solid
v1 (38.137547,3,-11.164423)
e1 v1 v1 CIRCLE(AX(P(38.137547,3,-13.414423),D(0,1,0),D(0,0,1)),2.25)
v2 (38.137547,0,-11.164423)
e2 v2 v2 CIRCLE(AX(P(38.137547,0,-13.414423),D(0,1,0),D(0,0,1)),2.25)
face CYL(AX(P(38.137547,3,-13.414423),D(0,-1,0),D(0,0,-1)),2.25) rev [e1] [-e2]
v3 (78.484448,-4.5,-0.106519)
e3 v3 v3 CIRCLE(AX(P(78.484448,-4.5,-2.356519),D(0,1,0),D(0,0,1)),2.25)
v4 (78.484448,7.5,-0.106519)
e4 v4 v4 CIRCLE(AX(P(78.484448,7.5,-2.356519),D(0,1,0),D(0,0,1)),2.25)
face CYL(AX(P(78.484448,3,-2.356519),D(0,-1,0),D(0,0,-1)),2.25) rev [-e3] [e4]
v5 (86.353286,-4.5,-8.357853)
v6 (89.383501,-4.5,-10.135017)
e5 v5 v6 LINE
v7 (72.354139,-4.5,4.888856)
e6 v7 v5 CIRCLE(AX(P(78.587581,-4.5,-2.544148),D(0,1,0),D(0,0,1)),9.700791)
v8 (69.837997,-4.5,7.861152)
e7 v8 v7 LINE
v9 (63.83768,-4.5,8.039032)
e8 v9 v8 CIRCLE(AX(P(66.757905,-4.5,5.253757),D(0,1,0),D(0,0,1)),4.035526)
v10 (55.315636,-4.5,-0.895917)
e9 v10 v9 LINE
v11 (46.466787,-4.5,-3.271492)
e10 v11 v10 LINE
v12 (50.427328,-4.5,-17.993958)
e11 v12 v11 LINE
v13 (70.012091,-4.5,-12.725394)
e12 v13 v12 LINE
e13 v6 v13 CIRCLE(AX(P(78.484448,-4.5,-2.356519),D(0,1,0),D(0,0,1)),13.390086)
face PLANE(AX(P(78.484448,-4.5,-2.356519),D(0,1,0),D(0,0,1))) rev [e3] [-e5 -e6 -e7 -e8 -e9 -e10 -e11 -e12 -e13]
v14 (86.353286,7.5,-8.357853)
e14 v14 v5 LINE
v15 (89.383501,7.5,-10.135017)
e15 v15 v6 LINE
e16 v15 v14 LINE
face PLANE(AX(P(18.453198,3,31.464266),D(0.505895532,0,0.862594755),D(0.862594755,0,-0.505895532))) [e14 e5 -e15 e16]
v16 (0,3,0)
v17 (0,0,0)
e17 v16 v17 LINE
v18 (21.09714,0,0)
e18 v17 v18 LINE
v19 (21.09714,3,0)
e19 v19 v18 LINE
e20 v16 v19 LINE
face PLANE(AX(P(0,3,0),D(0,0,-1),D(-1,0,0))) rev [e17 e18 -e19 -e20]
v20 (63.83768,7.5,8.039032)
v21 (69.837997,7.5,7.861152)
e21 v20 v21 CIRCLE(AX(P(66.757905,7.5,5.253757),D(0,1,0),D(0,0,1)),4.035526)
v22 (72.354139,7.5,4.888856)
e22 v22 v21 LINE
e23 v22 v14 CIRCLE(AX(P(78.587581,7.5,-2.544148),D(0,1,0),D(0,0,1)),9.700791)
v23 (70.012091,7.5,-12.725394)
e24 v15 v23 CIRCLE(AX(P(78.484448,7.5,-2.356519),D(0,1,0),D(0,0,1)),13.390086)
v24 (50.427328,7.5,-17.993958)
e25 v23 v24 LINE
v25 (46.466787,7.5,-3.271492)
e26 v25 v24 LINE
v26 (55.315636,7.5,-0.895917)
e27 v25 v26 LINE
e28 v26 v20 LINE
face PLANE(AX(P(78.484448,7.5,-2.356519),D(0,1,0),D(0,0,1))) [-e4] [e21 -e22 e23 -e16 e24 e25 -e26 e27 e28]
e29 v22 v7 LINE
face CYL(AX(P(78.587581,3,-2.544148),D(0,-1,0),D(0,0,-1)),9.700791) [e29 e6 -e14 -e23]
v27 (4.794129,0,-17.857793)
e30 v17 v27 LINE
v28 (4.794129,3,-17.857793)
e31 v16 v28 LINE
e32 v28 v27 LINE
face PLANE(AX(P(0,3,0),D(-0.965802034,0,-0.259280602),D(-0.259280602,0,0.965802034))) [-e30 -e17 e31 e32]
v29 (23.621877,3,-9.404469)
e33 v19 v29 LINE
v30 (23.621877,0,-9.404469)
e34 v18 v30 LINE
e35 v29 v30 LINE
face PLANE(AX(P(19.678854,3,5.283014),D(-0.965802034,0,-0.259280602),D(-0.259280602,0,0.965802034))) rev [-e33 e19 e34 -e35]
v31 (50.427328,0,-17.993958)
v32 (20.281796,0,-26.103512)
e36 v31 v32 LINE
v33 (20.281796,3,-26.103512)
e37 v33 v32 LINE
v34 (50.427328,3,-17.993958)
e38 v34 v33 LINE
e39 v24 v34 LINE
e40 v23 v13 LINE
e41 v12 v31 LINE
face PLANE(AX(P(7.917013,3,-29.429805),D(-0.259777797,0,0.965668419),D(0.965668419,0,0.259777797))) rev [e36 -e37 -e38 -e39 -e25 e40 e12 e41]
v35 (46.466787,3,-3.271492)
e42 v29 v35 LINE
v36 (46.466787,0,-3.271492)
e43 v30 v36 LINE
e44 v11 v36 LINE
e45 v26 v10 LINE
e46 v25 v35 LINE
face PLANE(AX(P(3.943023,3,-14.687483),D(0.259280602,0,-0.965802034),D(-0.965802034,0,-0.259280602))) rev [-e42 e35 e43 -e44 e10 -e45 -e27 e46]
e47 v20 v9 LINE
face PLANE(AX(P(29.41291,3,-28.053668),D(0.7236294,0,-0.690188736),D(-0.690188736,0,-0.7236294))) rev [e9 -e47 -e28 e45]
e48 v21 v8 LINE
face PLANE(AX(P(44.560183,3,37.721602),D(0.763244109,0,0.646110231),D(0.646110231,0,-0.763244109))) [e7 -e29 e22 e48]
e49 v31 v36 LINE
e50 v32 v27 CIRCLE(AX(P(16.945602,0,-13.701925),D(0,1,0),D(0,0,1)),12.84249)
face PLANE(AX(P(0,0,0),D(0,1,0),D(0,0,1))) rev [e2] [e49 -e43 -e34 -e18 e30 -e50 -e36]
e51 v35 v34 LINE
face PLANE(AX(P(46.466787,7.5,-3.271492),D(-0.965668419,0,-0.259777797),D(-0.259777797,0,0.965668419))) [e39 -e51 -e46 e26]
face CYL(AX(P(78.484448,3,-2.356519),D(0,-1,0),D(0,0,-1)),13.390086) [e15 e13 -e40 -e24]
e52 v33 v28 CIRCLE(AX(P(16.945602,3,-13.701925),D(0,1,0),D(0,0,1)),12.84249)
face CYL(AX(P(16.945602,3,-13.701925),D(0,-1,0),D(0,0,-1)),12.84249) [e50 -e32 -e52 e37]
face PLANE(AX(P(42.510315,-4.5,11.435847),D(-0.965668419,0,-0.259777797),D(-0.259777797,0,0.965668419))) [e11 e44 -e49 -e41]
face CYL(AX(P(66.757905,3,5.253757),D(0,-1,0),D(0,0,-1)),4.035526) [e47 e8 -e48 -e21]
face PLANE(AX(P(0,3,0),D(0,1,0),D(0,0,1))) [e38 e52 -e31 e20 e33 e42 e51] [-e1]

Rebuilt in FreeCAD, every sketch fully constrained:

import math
import FreeCAD as App
import Part
import Sketcher

V = App.Vector
Q = App.Units.Quantity

doc = App.newDocument("Part")
body = doc.addObject("PartDesign::Body", "Body")

# Sketch on XZ plane
sketch1 = body.newObject("Sketcher::SketchObject", "Sketch")
sketch1.AttachmentSupport = (doc.getObject("XZ_Plane"), [""])
sketch1.MapMode = "FlatFace"
sketch1.addGeometry(Part.LineSegment(V(4.3, -16.2, 0), V(0, 0, 0)), False)
sketch1.addGeometry(Part.LineSegment(V(0, 0, 0), V(21.1, 0, 0)), False)
sketch1.addGeometry(Part.LineSegment(V(21.1, 0, 0), V(23.6, -9.4, 0)), False)
sketch1.addGeometry(Part.LineSegment(V(23.6, -9.4, 0), V(55.3, -0.9, 0)), False)
sketch1.addGeometry(Part.LineSegment(V(55.3, -0.9, 0), V(63.8, 8, 0)), False)
sketch1.addGeometry(Part.ArcOfCircle(Part.Circle(V(66.8, 5.3, 0), V(0, 0, 1), 4), math.radians(40), math.radians(136)), False)
sketch1.addGeometry(Part.LineSegment(V(69.8, 7.9, 0), V(72.4, 4.9, 0)), False)
sketch1.addGeometry(Part.ArcOfCircle(Part.Circle(V(78.6, -2.5, 0), V(0, 0, 1), 9.7), math.radians(-37), math.radians(130)), False)
sketch1.addGeometry(Part.LineSegment(V(86.4, -8.4, 0), V(89.4, -10.1, 0)), False)
sketch1.addGeometry(Part.ArcOfCircle(Part.Circle(V(78.5, -2.4, 0), V(0, 0, 1), 13.4), math.radians(-129), math.radians(-36)), False)
sketch1.addGeometry(Part.LineSegment(V(70, -12.7, 0), V(20.3, -26.1, 0)), False)
sketch1.addGeometry(Part.ArcOfCircle(Part.Circle(V(16.9, -13.7, 0), V(0, 0, 1), 12.8), math.radians(-161), math.radians(-75)), False)
sketch1.addGeometry(Part.LineSegment(V(4.8, -17.9, 0), V(4.3, -16.2, 0)), False)
sketch1.addGeometry(Part.Circle(V(78.5, -2.4, 0), V(0, 0, 1), 2.2), False)
sketch1.addGeometry(Part.Circle(V(38.1, -13.4, 0), V(0, 0, 1), 2.2), False)
sketch1.addConstraint(Sketcher.Constraint("Coincident", 0, 2, 1, 1))
sketch1.addConstraint(Sketcher.Constraint("Coincident", 1, 2, 2, 1))
sketch1.addConstraint(Sketcher.Constraint("Coincident", 2, 2, 3, 1))
sketch1.addConstraint(Sketcher.Constraint("Coincident", 3, 2, 4, 1))
sketch1.addConstraint(Sketcher.Constraint("Tangent", 4, 2, 5, 2))
sketch1.addConstraint(Sketcher.Constraint("Tangent", 5, 1, 6, 1))
sketch1.addConstraint(Sketcher.Constraint("Coincident", 6, 2, 7, 2))
sketch1.addConstraint(Sketcher.Constraint("Coincident", 7, 1, 8, 1))
sketch1.addConstraint(Sketcher.Constraint("Coincident", 8, 2, 9, 2))
sketch1.addConstraint(Sketcher.Constraint("Coincident", 9, 1, 10, 1))
sketch1.addConstraint(Sketcher.Constraint("Tangent", 10, 2, 11, 2))
sketch1.addConstraint(Sketcher.Constraint("Coincident", 11, 1, 12, 1))
sketch1.addConstraint(Sketcher.Constraint("Coincident", 12, 2, 0, 1))
sketch1.addConstraint(Sketcher.Constraint("Horizontal", 1))
sketch1.addConstraint(Sketcher.Constraint("Coincident", 0, 2, -1, 1))
sketch1.addConstraint(Sketcher.Constraint("Coincident", 13, 3, 9, 3))
sketch1.addConstraint(Sketcher.Constraint("Equal", 13, 14))
sketch1.addConstraint(Sketcher.Constraint("Parallel", 0, 2))
sketch1.addConstraint(Sketcher.Constraint("Perpendicular", 2, 3))
sketch1.addConstraint(Sketcher.Constraint("Perpendicular", 3, 12))
sketch1.addConstraint(Sketcher.Constraint("Diameter", 13, Q("4.5 mm")))
sketch1.addConstraint(Sketcher.Constraint("Radius", 7, Q("9.700791 mm")))
sketch1.addConstraint(Sketcher.Constraint("Radius", 11, Q("12.84249 mm")))
sketch1.addConstraint(Sketcher.Constraint("Distance", 3, Q("32.815999 mm")))
sketch1.addConstraint(Sketcher.Constraint("Radius", 5, Q("4.035526 mm")))
sketch1.addConstraint(Sketcher.Constraint("Radius", 9, Q("13.390086 mm")))
sketch1.addConstraint(Sketcher.Constraint("DistanceX", 1, 1, 1, 2, Q("21.09714 mm")))
sketch1.addConstraint(Sketcher.Constraint("DistanceX", -1, 1, 8, 2, Q("89.383501 mm")))
sketch1.addConstraint(Sketcher.Constraint("DistanceY", 11, 3, 14, 3, Q("0.287502 mm")))
sketch1.addConstraint(Sketcher.Constraint("DistanceX", 14, 3, 13, 3, Q("40.3469 mm")))
sketch1.addConstraint(Sketcher.Constraint("DistanceY", 9, 3, 3, 2, Q("1.460602 mm")))
sketch1.addConstraint(Sketcher.Constraint("DistanceX", 4, 2, 7, 3, Q("14.749901 mm")))
sketch1.addConstraint(Sketcher.Constraint("DistanceY", 7, 3, 5, 1, Q("10.405301 mm")))
sketch1.addConstraint(Sketcher.Constraint("DistanceY", 6, 2, 5, 3, Q("0.364901 mm")))
sketch1.addConstraint(Sketcher.Constraint("DistanceY", 8, 2, 13, 3, Q("7.778498 mm")))
sketch1.addConstraint(Sketcher.Constraint("Distance", 0, Q("16.763909 mm")))
sketch1.addConstraint(Sketcher.Constraint("Distance", 2, Q("9.737471 mm")))
sketch1.addConstraint(Sketcher.Constraint("Distance", 4, Q("12.34741 mm")))
sketch1.addConstraint(Sketcher.Constraint("Distance", 12, Q("1.726208 mm")))
sketch1.addConstraint(Sketcher.Constraint("DistanceX", -1, 1, 7, 3, Q("78.587581 mm")))
sketch1.addConstraint(Sketcher.Constraint("DistanceY", 7, 3, -1, 1, Q("2.544148 mm")))
sketch1.addConstraint(Sketcher.Constraint("DistanceX", -1, 1, 9, 1, Q("70.012091 mm")))
sketch1.addConstraint(Sketcher.Constraint("DistanceY", 10, 2, -1, 1, Q("26.103512 mm")))
sketch1.addConstraint(Sketcher.Constraint("DistanceX", 13, 3, 7, 1, Q("7.868839 mm")))
pad1 = body.newObject("PartDesign::Pad", "Pad")
pad1.Profile = sketch1
pad1.Length = 3
pad1.Reversed = True

# Sketch on XZ plane
sketch2 = body.newObject("Sketcher::SketchObject", "Sketch001")
sketch2.AttachmentSupport = (doc.getObject("XZ_Plane"), [""])
sketch2.MapMode = "FlatFace"
sketch2.AttachmentOffset = App.Placement(V(0, 0, -3), App.Rotation())
sketch2.addGeometry(Part.LineSegment(V(46.5, -3.3, 0), V(55.3, -0.9, 0)), False)
sketch2.addGeometry(Part.LineSegment(V(55.3, -0.9, 0), V(63.8, 8, 0)), False)
sketch2.addGeometry(Part.ArcOfCircle(Part.Circle(V(66.8, 5.3, 0), V(0, 0, 1), 4), math.radians(40), math.radians(136)), False)
sketch2.addGeometry(Part.LineSegment(V(69.8, 7.9, 0), V(72.4, 4.9, 0)), False)
sketch2.addGeometry(Part.ArcOfCircle(Part.Circle(V(78.6, -2.5, 0), V(0, 0, 1), 9.7), math.radians(-37), math.radians(130)), False)
sketch2.addGeometry(Part.LineSegment(V(86.4, -8.4, 0), V(89.4, -10.1, 0)), False)
sketch2.addGeometry(Part.ArcOfCircle(Part.Circle(V(78.5, -2.4, 0), V(0, 0, 1), 13.4), math.radians(-129), math.radians(-36)), False)
sketch2.addGeometry(Part.LineSegment(V(70, -12.7, 0), V(50.4, -18, 0)), False)
sketch2.addGeometry(Part.LineSegment(V(50.4, -18, 0), V(46.5, -3.3, 0)), False)
sketch2.addGeometry(Part.Circle(V(78.5, -2.4, 0), V(0, 0, 1), 2.2), False)
sketch2.addConstraint(Sketcher.Constraint("Coincident", 0, 2, 1, 1))
sketch2.addConstraint(Sketcher.Constraint("Tangent", 1, 2, 2, 2))
sketch2.addConstraint(Sketcher.Constraint("Tangent", 2, 1, 3, 1))
sketch2.addConstraint(Sketcher.Constraint("Coincident", 3, 2, 4, 2))
sketch2.addConstraint(Sketcher.Constraint("Coincident", 4, 1, 5, 1))
sketch2.addConstraint(Sketcher.Constraint("Coincident", 5, 2, 6, 2))
sketch2.addConstraint(Sketcher.Constraint("Coincident", 6, 1, 7, 1))
sketch2.addConstraint(Sketcher.Constraint("Coincident", 7, 2, 8, 1))
sketch2.addConstraint(Sketcher.Constraint("Coincident", 8, 2, 0, 1))
sketch2.addConstraint(Sketcher.Constraint("Coincident", 9, 3, 6, 3))
sketch2.addConstraint(Sketcher.Constraint("Perpendicular", 7, 8))
sketch2.addConstraint(Sketcher.Constraint("Diameter", 9, Q("4.5 mm")))
sketch2.addConstraint(Sketcher.Constraint("Radius", 4, Q("9.700791 mm")))
sketch2.addConstraint(Sketcher.Constraint("Radius", 2, Q("4.035526 mm")))
sketch2.addConstraint(Sketcher.Constraint("Radius", 6, Q("13.390086 mm")))
sketch2.addConstraint(Sketcher.Constraint("DistanceX", -1, 1, 5, 2, Q("89.383501 mm")))
sketch2.addConstraint(Sketcher.Constraint("DistanceY", 6, 3, 0, 2, Q("1.460602 mm")))
sketch2.addConstraint(Sketcher.Constraint("DistanceX", 1, 2, 4, 3, Q("14.749901 mm")))
sketch2.addConstraint(Sketcher.Constraint("DistanceY", 4, 3, 2, 1, Q("10.405301 mm")))
sketch2.addConstraint(Sketcher.Constraint("DistanceY", 3, 2, 2, 3, Q("0.364901 mm")))
sketch2.addConstraint(Sketcher.Constraint("DistanceY", 5, 2, 9, 3, Q("7.778498 mm")))
sketch2.addConstraint(Sketcher.Constraint("DistanceY", 6, 1, 8, 2, Q("9.453902 mm")))
sketch2.addConstraint(Sketcher.Constraint("Distance", 1, Q("12.34741 mm")))
sketch2.addConstraint(Sketcher.Constraint("Distance", 8, Q("15.245882 mm")))
sketch2.addConstraint(Sketcher.Constraint("DistanceX", -1, 1, 4, 3, Q("78.587581 mm")))
sketch2.addConstraint(Sketcher.Constraint("DistanceY", 4, 3, -1, 1, Q("2.544148 mm")))
sketch2.addConstraint(Sketcher.Constraint("DistanceY", 6, 3, -1, 1, Q("2.356519 mm")))
sketch2.addConstraint(Sketcher.Constraint("DistanceX", -1, 1, 6, 1, Q("70.012091 mm")))
sketch2.addConstraint(Sketcher.Constraint("DistanceX", -1, 1, 7, 2, Q("50.427328 mm")))
sketch2.addConstraint(Sketcher.Constraint("DistanceX", 9, 3, 4, 1, Q("7.868839 mm")))
pad2 = body.newObject("PartDesign::Pad", "Pad001")
pad2.Profile = sketch2
pad2.Length = 4.5
pad2.Reversed = True

# Sketch on XZ plane
sketch3 = body.newObject("Sketcher::SketchObject", "Sketch002")
sketch3.AttachmentSupport = (doc.getObject("XZ_Plane"), [""])
sketch3.MapMode = "FlatFace"
sketch3.addGeometry(Part.LineSegment(V(46.5, -3.3, 0), V(55.3, -0.9, 0)), False)
sketch3.addGeometry(Part.LineSegment(V(55.3, -0.9, 0), V(63.8, 8, 0)), False)
sketch3.addGeometry(Part.ArcOfCircle(Part.Circle(V(66.8, 5.3, 0), V(0, 0, 1), 4), math.radians(40), math.radians(136)), False)
sketch3.addGeometry(Part.LineSegment(V(69.8, 7.9, 0), V(72.4, 4.9, 0)), False)
sketch3.addGeometry(Part.ArcOfCircle(Part.Circle(V(78.6, -2.5, 0), V(0, 0, 1), 9.7), math.radians(-37), math.radians(130)), False)
sketch3.addGeometry(Part.LineSegment(V(86.4, -8.4, 0), V(89.4, -10.1, 0)), False)
sketch3.addGeometry(Part.ArcOfCircle(Part.Circle(V(78.5, -2.4, 0), V(0, 0, 1), 13.4), math.radians(-129), math.radians(-36)), False)
sketch3.addGeometry(Part.LineSegment(V(70, -12.7, 0), V(50.4, -18, 0)), False)
sketch3.addGeometry(Part.LineSegment(V(50.4, -18, 0), V(46.5, -3.3, 0)), False)
sketch3.addGeometry(Part.Circle(V(78.5, -2.4, 0), V(0, 0, 1), 2.2), False)
sketch3.addConstraint(Sketcher.Constraint("Coincident", 0, 2, 1, 1))
sketch3.addConstraint(Sketcher.Constraint("Tangent", 1, 2, 2, 2))
sketch3.addConstraint(Sketcher.Constraint("Tangent", 2, 1, 3, 1))
sketch3.addConstraint(Sketcher.Constraint("Coincident", 3, 2, 4, 2))
sketch3.addConstraint(Sketcher.Constraint("Coincident", 4, 1, 5, 1))
sketch3.addConstraint(Sketcher.Constraint("Coincident", 5, 2, 6, 2))
sketch3.addConstraint(Sketcher.Constraint("Coincident", 6, 1, 7, 1))
sketch3.addConstraint(Sketcher.Constraint("Coincident", 7, 2, 8, 1))
sketch3.addConstraint(Sketcher.Constraint("Coincident", 8, 2, 0, 1))
sketch3.addConstraint(Sketcher.Constraint("Coincident", 9, 3, 6, 3))
sketch3.addConstraint(Sketcher.Constraint("Perpendicular", 7, 8))
sketch3.addConstraint(Sketcher.Constraint("Diameter", 9, Q("4.5 mm")))
sketch3.addConstraint(Sketcher.Constraint("Radius", 4, Q("9.700791 mm")))
sketch3.addConstraint(Sketcher.Constraint("Radius", 2, Q("4.035526 mm")))
sketch3.addConstraint(Sketcher.Constraint("Radius", 6, Q("13.390086 mm")))
sketch3.addConstraint(Sketcher.Constraint("DistanceX", -1, 1, 5, 2, Q("89.383501 mm")))
sketch3.addConstraint(Sketcher.Constraint("DistanceY", 6, 3, 0, 2, Q("1.460602 mm")))
sketch3.addConstraint(Sketcher.Constraint("DistanceX", 1, 2, 4, 3, Q("14.749901 mm")))
sketch3.addConstraint(Sketcher.Constraint("DistanceY", 4, 3, 2, 1, Q("10.405301 mm")))
sketch3.addConstraint(Sketcher.Constraint("DistanceY", 3, 2, 2, 3, Q("0.364901 mm")))
sketch3.addConstraint(Sketcher.Constraint("DistanceY", 5, 2, 9, 3, Q("7.778498 mm")))
sketch3.addConstraint(Sketcher.Constraint("DistanceY", 6, 1, 8, 2, Q("9.453902 mm")))
sketch3.addConstraint(Sketcher.Constraint("Distance", 1, Q("12.34741 mm")))
sketch3.addConstraint(Sketcher.Constraint("Distance", 8, Q("15.245882 mm")))
sketch3.addConstraint(Sketcher.Constraint("DistanceX", -1, 1, 4, 3, Q("78.587581 mm")))
sketch3.addConstraint(Sketcher.Constraint("DistanceY", 4, 3, -1, 1, Q("2.544148 mm")))
sketch3.addConstraint(Sketcher.Constraint("DistanceY", 6, 3, -1, 1, Q("2.356519 mm")))
sketch3.addConstraint(Sketcher.Constraint("DistanceX", -1, 1, 6, 1, Q("70.012091 mm")))
sketch3.addConstraint(Sketcher.Constraint("DistanceX", -1, 1, 7, 2, Q("50.427328 mm")))
sketch3.addConstraint(Sketcher.Constraint("DistanceX", 9, 3, 4, 1, Q("7.868839 mm")))
pad3 = body.newObject("PartDesign::Pad", "Pad002")
pad3.Profile = sketch3
pad3.Length = 4.5

doc.recompute()
